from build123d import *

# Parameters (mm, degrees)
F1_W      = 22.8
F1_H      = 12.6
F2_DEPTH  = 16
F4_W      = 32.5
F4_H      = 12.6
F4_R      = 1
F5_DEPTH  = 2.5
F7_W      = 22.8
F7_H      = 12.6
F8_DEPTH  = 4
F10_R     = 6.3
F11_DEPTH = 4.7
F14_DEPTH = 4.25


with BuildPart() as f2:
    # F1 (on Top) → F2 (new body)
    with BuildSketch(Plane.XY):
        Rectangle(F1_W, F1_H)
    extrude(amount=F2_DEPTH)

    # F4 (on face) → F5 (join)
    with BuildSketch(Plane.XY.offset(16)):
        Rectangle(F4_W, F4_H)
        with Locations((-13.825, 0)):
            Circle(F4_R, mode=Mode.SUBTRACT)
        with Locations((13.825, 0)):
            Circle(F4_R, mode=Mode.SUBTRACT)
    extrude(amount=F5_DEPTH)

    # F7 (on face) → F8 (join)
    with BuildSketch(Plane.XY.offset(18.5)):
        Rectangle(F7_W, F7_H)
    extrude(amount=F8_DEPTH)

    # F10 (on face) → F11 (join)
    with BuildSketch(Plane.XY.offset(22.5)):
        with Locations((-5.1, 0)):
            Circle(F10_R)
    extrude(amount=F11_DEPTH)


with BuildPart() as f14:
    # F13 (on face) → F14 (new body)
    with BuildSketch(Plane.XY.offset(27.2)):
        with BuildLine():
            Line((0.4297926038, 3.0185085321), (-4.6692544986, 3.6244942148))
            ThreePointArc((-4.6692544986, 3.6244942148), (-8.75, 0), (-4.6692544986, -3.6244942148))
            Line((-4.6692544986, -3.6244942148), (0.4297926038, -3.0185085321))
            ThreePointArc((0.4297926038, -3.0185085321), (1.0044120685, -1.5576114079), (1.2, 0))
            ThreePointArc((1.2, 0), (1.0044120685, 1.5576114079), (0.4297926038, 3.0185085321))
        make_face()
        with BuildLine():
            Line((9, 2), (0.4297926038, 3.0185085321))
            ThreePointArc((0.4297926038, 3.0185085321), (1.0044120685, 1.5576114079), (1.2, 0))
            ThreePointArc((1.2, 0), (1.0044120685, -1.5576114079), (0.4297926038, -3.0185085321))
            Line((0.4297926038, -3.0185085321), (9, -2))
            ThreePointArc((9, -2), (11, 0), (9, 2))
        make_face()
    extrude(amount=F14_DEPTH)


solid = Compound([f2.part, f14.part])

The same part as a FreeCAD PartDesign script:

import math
import FreeCAD as App
import Part
import Sketcher

V = App.Vector


def add_polygon(sketch, points):
    """Adds a closed chain of lines whose ends are joined by coincident constraints."""
    first, n = sketch.GeometryCount, len(points)
    for a, b in zip(points, points[1:] + points[:1]):
        sketch.addGeometry(Part.LineSegment(App.Vector(*a, 0), App.Vector(*b, 0)), False)
    for i in range(n):
        sketch.addConstraint(Sketcher.Constraint("Coincident", first + i, 2, first + (i + 1) % n, 1))

doc = App.newDocument("Part")
body = doc.addObject("PartDesign::Body", "Body")

sketch1 = body.newObject("Sketcher::SketchObject", "Sketch")
sketch1.AttachmentSupport = (doc.getObject("XY_Plane"), [""])
sketch1.MapMode = "FlatFace"
add_polygon(sketch1, [(-11.4, 6.3), (-11.4, -6.3), (11.4, -6.3), (11.4, 6.3)])
sketch1.addConstraint([
    Sketcher.Constraint("Vertical", 0),
    Sketcher.Constraint("Horizontal", 1),
    Sketcher.Constraint("Vertical", 2),
    Sketcher.Constraint("Horizontal", 3),
    Sketcher.Constraint("Symmetric", 0, 2, 2, 2, -1, 1),
    Sketcher.Constraint("DistanceX", 1, 1, 1, 2, 22.8),
    Sketcher.Constraint("DistanceY", 0, 2, 0, 1, 12.6),
])
pad1 = body.newObject("PartDesign::Pad", "Pad")
pad1.Profile = sketch1
pad1.Length = 16

sketch2 = body.newObject("Sketcher::SketchObject", "Sketch001")
sketch2.AttachmentSupport = (doc.getObject("XY_Plane"), [""])
sketch2.MapMode = "FlatFace"
sketch2.AttachmentOffset = App.Placement(V(0, 0, 16), App.Rotation())
add_polygon(sketch2, [(-16.25, 6.3), (-16.25, -6.3), (16.25, -6.3), (16.25, 6.3)])
sketch2.addGeometry(Part.Circle(V(-13.825, 0, 0), V(0, 0, 1), 1), False)
sketch2.addGeometry(Part.Circle(V(13.825, 0, 0), V(0, 0, 1), 1), False)
sketch2.addConstraint([
    Sketcher.Constraint("Vertical", 0),
    Sketcher.Constraint("Horizontal", 1),
    Sketcher.Constraint("Vertical", 2),
    Sketcher.Constraint("Horizontal", 3),
    Sketcher.Constraint("Equal", 4, 5),
    Sketcher.Constraint("Symmetric", 4, 3, 5, 3, -1, 1),
    Sketcher.Constraint("Symmetric", 0, 2, 2, 2, -1, 1),
    Sketcher.Constraint("PointOnObject", 4, 3, -1),
    Sketcher.Constraint("Diameter", 4, 2.0),
    Sketcher.Constraint("DistanceX", 1, 1, 1, 2, 32.5),
    Sketcher.Constraint("DistanceY", 0, 2, 0, 1, 12.6),
    Sketcher.Constraint("DistanceX", 4, 3, 5, 3, 27.65),
])
pad2 = body.newObject("PartDesign::Pad", "Pad001")
pad2.Profile = sketch2
pad2.Length = 2.5

sketch3 = body.newObject("Sketcher::SketchObject", "Sketch002")
sketch3.AttachmentSupport = (doc.getObject("XY_Plane"), [""])
sketch3.MapMode = "FlatFace"
sketch3.AttachmentOffset = App.Placement(V(0, 0, 18.5), App.Rotation())
add_polygon(sketch3, [(-11.4, 6.3), (-11.4, -6.3), (11.4, -6.3), (11.4, 6.3)])
sketch3.addConstraint([
    Sketcher.Constraint("Vertical", 0),
    Sketcher.Constraint("Horizontal", 1),
    Sketcher.Constraint("Vertical", 2),
    Sketcher.Constraint("Horizontal", 3),
    Sketcher.Constraint("Symmetric", 0, 2, 2, 2, -1, 1),
    Sketcher.Constraint("DistanceX", 1, 1, 1, 2, 22.8),
    Sketcher.Constraint("DistanceY", 0, 2, 0, 1, 12.6),
])
pad3 = body.newObject("PartDesign::Pad", "Pad002")
pad3.Profile = sketch3
pad3.Length = 4

sketch4 = body.newObject("Sketcher::SketchObject", "Sketch003")
sketch4.AttachmentSupport = (doc.getObject("XY_Plane"), [""])
sketch4.MapMode = "FlatFace"
sketch4.AttachmentOffset = App.Placement(V(0, 0, 22.5), App.Rotation())
sketch4.addGeometry(Part.Circle(V(-5.1, 0, 0), V(0, 0, 1), 6.3), False)
sketch4.addConstraint([
    Sketcher.Constraint("PointOnObject", 0, 3, -1),
    Sketcher.Constraint("Diameter", 0, 12.6),
    Sketcher.Constraint("DistanceX", 0, 3, -1, 1, 5.1),
])
pad4 = body.newObject("PartDesign::Pad", "Pad003")
pad4.Profile = sketch4
pad4.Length = 4.7
body2 = doc.addObject("PartDesign::Body", "Body001")

sketch5 = body2.newObject("Sketcher::SketchObject", "Sketch004")
sketch5.AttachmentSupport = (doc.getObject("XY_Plane001"), [""])
sketch5.MapMode = "FlatFace"
sketch5.AttachmentOffset = App.Placement(V(0, 0, 27.2), App.Rotation())
sketch5.addGeometry([
    Part.LineSegment(V(0.429793, 3.018509, 0), V(-4.669254, 3.624494, 0)),
    Part.ArcOfCircle(Part.Circle(V(-5.1, 0, 0), V(0, 0, 1), 3.65), math.radians(83.22259), math.radians(276.77741)),
    Part.LineSegment(V(-4.669254, -3.624494, 0), V(0.429793, -3.018509, 0)),
    Part.LineSegment(V(0.429793, -3.018509, 0), V(9, -2, 0)),
    Part.ArcOfCircle(Part.Circle(V(9, 0, 0), V(0, 0, 1), 2), math.radians(-90), math.radians(90)),
    Part.LineSegment(V(9, 2, 0), V(0.429793, 3.018509, 0)),
], False)
sketch5.addConstraint([
    Sketcher.Constraint("Tangent", 0, 2, 1, 1),
    Sketcher.Constraint("Tangent", 1, 2, 2, 1),
    Sketcher.Constraint("Coincident", 2, 2, 3, 1),
    Sketcher.Constraint("Coincident", 3, 2, 4, 1),
    Sketcher.Constraint("Coincident", 4, 2, 5, 1),
    Sketcher.Constraint("Coincident", 5, 2, 0, 1),
    Sketcher.Constraint("Symmetric", 0, 2, 1, 2, -1),
    Sketcher.Constraint("Symmetric", 3, 2, 4, 2, -1),
    Sketcher.Constraint("Parallel", 2, 3),
    Sketcher.Constraint("Vertical", 4, 3, 3, 2),
    Sketcher.Constraint("Vertical", 2, 2, 5, 2),
    Sketcher.Constraint("Radius", 4, 2.0),
    Sketcher.Constraint("Radius", 1, 3.65),
    Sketcher.Constraint("DistanceX", -1, 1, 4, 3, 9.0),
    Sketcher.Constraint("DistanceX", 1, 3, -1, 1, 5.1),
    Sketcher.Constraint("Distance", 0, 5.134929),
])
pad5 = body2.newObject("PartDesign::Pad", "Pad004")
pad5.Profile = sketch5
pad5.Length = 4.25

doc.recompute()
